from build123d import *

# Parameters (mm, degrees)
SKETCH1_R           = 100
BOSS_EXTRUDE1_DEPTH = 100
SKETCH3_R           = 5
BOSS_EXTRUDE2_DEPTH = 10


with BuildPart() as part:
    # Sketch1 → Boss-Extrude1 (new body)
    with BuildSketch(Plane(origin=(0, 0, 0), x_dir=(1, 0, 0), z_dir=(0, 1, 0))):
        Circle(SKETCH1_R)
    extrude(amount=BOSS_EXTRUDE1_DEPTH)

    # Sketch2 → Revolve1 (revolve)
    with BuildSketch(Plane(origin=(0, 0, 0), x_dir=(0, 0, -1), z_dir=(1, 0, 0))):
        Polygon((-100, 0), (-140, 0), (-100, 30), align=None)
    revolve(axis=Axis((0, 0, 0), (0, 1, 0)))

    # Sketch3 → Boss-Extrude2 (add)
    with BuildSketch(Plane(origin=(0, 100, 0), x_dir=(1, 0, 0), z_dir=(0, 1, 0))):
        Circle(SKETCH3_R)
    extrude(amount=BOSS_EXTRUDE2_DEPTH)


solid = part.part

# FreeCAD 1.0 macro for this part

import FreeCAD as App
import Part
import Sketcher
Q = App.Units.Quantity


def add_polygon(sketch, points):
    """Adds a closed chain of lines whose ends are joined by coincident constraints."""
    first, n = sketch.GeometryCount, len(points)
    for a, b in zip(points, points[1:] + points[:1]):
        sketch.addGeometry(Part.LineSegment(App.Vector(*a, 0), App.Vector(*b, 0)), False)
    for i in range(n):
        sketch.addConstraint(Sketcher.Constraint("Coincident", first + i, 2, first + (i + 1) % n, 1))

doc = App.newDocument("Part")
body = doc.addObject("PartDesign::Body", "Body")

# Sketch on XZ plane
sketch1 = doc.addObject("Sketcher::SketchObject", "Sketch")
body.addObject(sketch1)
sketch1.AttachmentSupport = (doc.XZ_Plane, [""])
sketch1.MapMode = "FlatFace"
sketch1.addGeometry(Part.Circle(App.Vector(0, 0, 0), App.Vector(0, 0, 1), 100), False)
sketch1.addConstraint([
    Sketcher.Constraint("Coincident", 0, 3, -1, 1),
    Sketcher.Constraint("Diameter", 0, Q("200 mm")),
])
pad1 = doc.addObject("PartDesign::Pad", "Pad")
body.addObject(pad1)
pad1.Profile = sketch1
pad1.Length = 100
pad1.Reversed = True

# Sketch on YZ plane
sketch2 = doc.addObject("Sketcher::SketchObject", "Sketch001")
body.addObject(sketch2)
sketch2.AttachmentSupport = (doc.YZ_Plane, [""])
sketch2.MapMode = "FlatFace"
add_polygon(sketch2, [(0, 140), (0, 100), (30, 100)])  # lines 0-2
sketch2.addConstraint([
    Sketcher.Constraint("Vertical", 0),
    Sketcher.Constraint("Horizontal", 1),
    Sketcher.Constraint("PointOnObject", 0, 2, -2),
    Sketcher.Constraint("DistanceX", 1, 1, 1, 2, Q("30 mm")),
    Sketcher.Constraint("DistanceY", 0, 2, 0, 1, Q("40 mm")),
    Sketcher.Constraint("DistanceY", -1, 1, 0, 2, Q("100 mm")),
])
revolution = doc.addObject("PartDesign::Revolution", "Revolution")
body.addObject(revolution)
revolution.Profile = sketch2
revolution.ReferenceAxis = (sketch2, ["H_Axis"])
revolution.Angle = 360

# Sketch on XZ plane
sketch3 = doc.addObject("Sketcher::SketchObject", "Sketch002")
body.addObject(sketch3)
sketch3.AttachmentSupport = (doc.XZ_Plane, [""])
sketch3.MapMode = "FlatFace"
sketch3.AttachmentOffset = App.Placement(App.Vector(0, 0, -100), App.Rotation())
sketch3.addGeometry(Part.Circle(App.Vector(0, 0, 0), App.Vector(0, 0, 1), 5), False)
sketch3.addConstraint([
    Sketcher.Constraint("Coincident", 0, 3, -1, 1),
    Sketcher.Constraint("Diameter", 0, Q("10 mm")),
])
pad2 = doc.addObject("PartDesign::Pad", "Pad001")
body.addObject(pad2)
pad2.Profile = sketch3
pad2.Length = 10
pad2.Reversed = True

doc.recompute()
